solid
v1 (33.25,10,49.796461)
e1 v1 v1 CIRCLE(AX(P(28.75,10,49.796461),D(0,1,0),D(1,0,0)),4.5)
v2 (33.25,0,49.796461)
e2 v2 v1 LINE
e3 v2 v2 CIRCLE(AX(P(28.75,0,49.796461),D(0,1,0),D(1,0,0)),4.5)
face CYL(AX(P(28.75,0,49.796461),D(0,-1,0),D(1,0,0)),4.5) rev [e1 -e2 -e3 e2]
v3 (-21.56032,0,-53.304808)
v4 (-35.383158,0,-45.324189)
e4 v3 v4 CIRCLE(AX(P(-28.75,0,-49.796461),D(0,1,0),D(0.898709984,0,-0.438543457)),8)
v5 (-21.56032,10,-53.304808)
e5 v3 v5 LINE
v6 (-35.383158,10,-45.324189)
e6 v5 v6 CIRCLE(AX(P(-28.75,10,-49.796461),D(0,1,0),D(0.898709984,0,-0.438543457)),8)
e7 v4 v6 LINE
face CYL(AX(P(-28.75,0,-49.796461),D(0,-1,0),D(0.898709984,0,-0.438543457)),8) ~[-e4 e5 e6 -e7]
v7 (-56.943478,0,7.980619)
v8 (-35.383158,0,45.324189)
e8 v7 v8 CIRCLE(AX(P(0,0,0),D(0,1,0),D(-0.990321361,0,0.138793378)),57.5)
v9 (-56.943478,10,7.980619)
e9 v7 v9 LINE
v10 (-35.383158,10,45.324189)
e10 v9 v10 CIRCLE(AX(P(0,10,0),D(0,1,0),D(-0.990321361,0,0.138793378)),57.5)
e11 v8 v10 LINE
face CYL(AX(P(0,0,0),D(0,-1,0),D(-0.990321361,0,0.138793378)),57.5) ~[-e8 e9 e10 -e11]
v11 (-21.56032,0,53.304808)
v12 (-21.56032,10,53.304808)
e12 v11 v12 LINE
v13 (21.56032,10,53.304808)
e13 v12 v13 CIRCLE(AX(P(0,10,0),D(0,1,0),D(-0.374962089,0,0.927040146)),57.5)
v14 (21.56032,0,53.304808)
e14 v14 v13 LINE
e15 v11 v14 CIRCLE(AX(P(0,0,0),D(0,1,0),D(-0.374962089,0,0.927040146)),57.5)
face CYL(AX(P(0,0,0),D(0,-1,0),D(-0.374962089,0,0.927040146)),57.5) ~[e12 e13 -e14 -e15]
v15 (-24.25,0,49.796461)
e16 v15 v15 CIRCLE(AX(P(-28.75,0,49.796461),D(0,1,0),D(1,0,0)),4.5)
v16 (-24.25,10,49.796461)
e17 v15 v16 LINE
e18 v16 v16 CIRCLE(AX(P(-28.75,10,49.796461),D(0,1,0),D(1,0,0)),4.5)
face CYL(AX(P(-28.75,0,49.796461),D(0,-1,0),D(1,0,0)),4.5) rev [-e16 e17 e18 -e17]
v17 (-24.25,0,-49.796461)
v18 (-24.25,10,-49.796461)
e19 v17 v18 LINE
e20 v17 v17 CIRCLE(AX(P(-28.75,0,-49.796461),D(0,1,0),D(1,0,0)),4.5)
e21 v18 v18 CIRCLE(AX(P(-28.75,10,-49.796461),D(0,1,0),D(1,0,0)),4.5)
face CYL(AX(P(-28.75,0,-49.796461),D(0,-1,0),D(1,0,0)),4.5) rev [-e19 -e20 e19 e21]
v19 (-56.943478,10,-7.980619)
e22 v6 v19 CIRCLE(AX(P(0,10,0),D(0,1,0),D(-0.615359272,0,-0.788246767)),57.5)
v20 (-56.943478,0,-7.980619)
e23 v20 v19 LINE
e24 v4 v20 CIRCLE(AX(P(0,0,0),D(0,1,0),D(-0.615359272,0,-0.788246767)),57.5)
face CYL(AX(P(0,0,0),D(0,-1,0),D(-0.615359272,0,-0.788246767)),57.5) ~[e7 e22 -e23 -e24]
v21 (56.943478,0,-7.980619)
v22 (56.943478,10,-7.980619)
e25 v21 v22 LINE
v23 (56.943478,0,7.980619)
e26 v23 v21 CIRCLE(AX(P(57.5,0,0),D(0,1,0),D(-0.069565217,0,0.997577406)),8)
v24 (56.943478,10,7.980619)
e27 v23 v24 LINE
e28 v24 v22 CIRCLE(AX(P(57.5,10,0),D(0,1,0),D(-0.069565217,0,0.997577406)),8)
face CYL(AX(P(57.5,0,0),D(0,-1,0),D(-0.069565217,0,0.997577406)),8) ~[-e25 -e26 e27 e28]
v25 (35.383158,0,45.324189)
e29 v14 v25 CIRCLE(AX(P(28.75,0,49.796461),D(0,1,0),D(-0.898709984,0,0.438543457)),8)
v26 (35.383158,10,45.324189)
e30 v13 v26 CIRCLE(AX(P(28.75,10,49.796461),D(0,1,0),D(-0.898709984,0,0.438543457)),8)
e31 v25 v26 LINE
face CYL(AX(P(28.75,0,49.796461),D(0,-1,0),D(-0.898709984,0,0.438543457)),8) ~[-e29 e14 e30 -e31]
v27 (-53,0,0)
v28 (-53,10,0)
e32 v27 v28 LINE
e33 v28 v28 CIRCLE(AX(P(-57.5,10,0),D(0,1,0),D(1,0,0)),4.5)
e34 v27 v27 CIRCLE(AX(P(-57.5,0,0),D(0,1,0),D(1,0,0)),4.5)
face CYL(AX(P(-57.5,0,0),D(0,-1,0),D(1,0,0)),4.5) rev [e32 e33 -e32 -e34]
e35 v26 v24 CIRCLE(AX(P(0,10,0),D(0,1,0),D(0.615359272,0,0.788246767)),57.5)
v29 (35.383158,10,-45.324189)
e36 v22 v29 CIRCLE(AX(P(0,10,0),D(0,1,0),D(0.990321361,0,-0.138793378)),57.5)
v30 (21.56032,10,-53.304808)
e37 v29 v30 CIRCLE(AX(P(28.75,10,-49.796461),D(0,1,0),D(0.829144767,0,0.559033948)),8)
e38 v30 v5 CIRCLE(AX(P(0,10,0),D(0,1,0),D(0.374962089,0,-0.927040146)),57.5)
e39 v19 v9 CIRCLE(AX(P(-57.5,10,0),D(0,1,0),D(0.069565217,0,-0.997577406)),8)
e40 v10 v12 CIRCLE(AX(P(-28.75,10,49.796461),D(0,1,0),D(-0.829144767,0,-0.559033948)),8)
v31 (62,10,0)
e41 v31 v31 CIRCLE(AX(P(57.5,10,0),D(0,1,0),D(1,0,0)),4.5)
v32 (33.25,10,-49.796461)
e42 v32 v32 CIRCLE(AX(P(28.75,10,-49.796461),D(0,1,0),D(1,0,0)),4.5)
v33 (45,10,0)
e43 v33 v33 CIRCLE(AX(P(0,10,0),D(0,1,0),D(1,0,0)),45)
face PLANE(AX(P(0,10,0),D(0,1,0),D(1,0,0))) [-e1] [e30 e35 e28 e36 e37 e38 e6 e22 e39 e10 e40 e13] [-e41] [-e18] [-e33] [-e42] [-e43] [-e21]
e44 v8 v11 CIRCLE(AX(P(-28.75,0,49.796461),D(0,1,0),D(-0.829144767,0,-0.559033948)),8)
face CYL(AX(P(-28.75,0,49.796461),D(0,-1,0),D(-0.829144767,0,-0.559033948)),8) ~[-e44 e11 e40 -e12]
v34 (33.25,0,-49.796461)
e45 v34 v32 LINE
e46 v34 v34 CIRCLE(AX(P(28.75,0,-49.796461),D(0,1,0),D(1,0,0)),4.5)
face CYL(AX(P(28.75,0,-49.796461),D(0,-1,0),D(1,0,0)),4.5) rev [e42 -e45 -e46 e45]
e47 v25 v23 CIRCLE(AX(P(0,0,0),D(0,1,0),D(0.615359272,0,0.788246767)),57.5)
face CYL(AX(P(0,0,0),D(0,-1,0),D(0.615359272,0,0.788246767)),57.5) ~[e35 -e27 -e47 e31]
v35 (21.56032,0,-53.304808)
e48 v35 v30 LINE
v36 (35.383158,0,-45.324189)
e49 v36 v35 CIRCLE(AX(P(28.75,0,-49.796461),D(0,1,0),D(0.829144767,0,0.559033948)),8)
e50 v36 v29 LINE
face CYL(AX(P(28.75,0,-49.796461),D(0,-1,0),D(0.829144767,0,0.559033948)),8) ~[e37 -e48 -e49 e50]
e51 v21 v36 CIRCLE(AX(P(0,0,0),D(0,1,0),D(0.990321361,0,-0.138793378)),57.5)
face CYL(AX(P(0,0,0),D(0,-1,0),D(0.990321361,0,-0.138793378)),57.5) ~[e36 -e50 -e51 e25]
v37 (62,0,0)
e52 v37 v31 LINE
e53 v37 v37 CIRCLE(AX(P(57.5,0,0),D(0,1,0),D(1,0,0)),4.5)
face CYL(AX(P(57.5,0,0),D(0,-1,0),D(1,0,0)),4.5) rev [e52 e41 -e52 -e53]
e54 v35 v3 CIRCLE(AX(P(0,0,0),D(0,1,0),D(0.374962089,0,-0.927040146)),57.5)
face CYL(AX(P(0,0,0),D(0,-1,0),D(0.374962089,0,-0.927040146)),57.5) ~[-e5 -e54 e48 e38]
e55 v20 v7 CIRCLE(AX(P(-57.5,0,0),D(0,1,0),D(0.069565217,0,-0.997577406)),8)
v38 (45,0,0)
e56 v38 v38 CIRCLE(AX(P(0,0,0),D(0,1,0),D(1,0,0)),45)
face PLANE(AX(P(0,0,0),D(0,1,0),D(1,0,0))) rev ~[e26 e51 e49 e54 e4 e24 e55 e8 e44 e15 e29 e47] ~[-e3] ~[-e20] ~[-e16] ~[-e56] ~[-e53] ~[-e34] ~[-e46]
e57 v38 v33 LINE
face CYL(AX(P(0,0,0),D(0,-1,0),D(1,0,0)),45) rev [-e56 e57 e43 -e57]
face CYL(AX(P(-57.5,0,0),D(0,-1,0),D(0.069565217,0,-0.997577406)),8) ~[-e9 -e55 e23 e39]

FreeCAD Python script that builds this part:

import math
import FreeCAD as App
import Part
import Sketcher
from FreeCAD import Vector

doc = App.newDocument("Part")
body = doc.addObject("PartDesign::Body", "Body")

# Sketch on XZ plane
sketch1 = body.newObject("Sketcher::SketchObject", "Sketch")
sketch1.AttachmentSupport = (doc.getObject("XZ_Plane"), [""])
sketch1.MapMode = "FlatFace"
sketch1.addGeometry([
    Part.ArcOfCircle(Part.Circle(Vector(0, 0, 0), Vector(0, 0, 1), 57.5), math.radians(-52), math.radians(-8)),  # 0
    Part.ArcOfCircle(Part.Circle(Vector(28.8, -49.8, 0), Vector(0, 0, 1), 8), math.radians(-154), math.radians(34)),  # 1
    Part.ArcOfCircle(Part.Circle(Vector(0, 0, 0), Vector(0, 0, 1), 57.5), math.radians(-112), math.radians(-68)),  # 2
    Part.ArcOfCircle(Part.Circle(Vector(-28.8, -49.8, 0), Vector(0, 0, 1), 8), math.radians(146), math.radians(334)),  # 3
    Part.ArcOfCircle(Part.Circle(Vector(0, 0, 0), Vector(0, 0, 1), 57.5), math.radians(-172), math.radians(-128)),  # 4
    Part.ArcOfCircle(Part.Circle(Vector(-57.5, 0, 0), Vector(0, 0, 1), 8), math.radians(86), math.radians(274)),  # 5
    Part.ArcOfCircle(Part.Circle(Vector(0, 0, 0), Vector(0, 0, 1), 57.5), math.radians(128), math.radians(172)),  # 6
    Part.ArcOfCircle(Part.Circle(Vector(-28.8, 49.8, 0), Vector(0, 0, 1), 8), math.radians(26), math.radians(214)),  # 7
    Part.ArcOfCircle(Part.Circle(Vector(0, 0, 0), Vector(0, 0, 1), 57.5), math.radians(68), math.radians(112)),  # 8
    Part.ArcOfCircle(Part.Circle(Vector(28.8, 49.8, 0), Vector(0, 0, 1), 8), math.radians(-34), math.radians(154)),  # 9
    Part.ArcOfCircle(Part.Circle(Vector(0, 0, 0), Vector(0, 0, 1), 57.5), math.radians(8), math.radians(52)),  # 10
    Part.ArcOfCircle(Part.Circle(Vector(57.5, 0, 0), Vector(0, 0, 1), 8), math.radians(-94), math.radians(94)),  # 11
    Part.Circle(Vector(-28.8, 49.8, 0), Vector(0, 0, 1), 4.5),  # 12
    Part.Circle(Vector(28.8, 49.8, 0), Vector(0, 0, 1), 4.5),  # 13
    Part.Circle(Vector(-57.5, 0, 0), Vector(0, 0, 1), 4.5),  # 14
    Part.Circle(Vector(-28.8, -49.8, 0), Vector(0, 0, 1), 4.5),  # 15
    Part.Circle(Vector(0, 0, 0), Vector(0, 0, 1), 45),  # 16
    Part.Circle(Vector(57.5, 0, 0), Vector(0, 0, 1), 4.5),  # 17
    Part.Circle(Vector(28.8, -49.8, 0), Vector(0, 0, 1), 4.5),  # 18
], False)
sketch1.addConstraint([
    Sketcher.Constraint("Coincident", 0, 1, 1, 2),
    Sketcher.Constraint("Coincident", 1, 1, 2, 2),
    Sketcher.Constraint("Coincident", 2, 1, 3, 2),
    Sketcher.Constraint("Coincident", 3, 1, 4, 2),
    Sketcher.Constraint("Coincident", 4, 1, 5, 2),
    Sketcher.Constraint("Coincident", 5, 1, 6, 2),
    Sketcher.Constraint("Coincident", 6, 1, 7, 2),
    Sketcher.Constraint("Coincident", 7, 1, 8, 2),
    Sketcher.Constraint("Coincident", 8, 1, 9, 2),
    Sketcher.Constraint("Coincident", 9, 1, 10, 2),
    Sketcher.Constraint("Coincident", 10, 1, 11, 2),
    Sketcher.Constraint("Coincident", 11, 1, 0, 2),
    Sketcher.Constraint("Coincident", 0, 3, -1, 1),
    Sketcher.Constraint("Coincident", 2, 3, -1, 1),
    Sketcher.Constraint("Coincident", 4, 3, -1, 1),
    Sketcher.Constraint("Coincident", 6, 3, -1, 1),
    Sketcher.Constraint("Coincident", 8, 3, -1, 1),
    Sketcher.Constraint("Coincident", 10, 3, -1, 1),
    Sketcher.Constraint("Coincident", 16, 3, -1, 1),
    Sketcher.Constraint("Coincident", 12, 3, 7, 3),
    Sketcher.Constraint("Coincident", 13, 3, 9, 3),
    Sketcher.Constraint("Coincident", 14, 3, 5, 3),
    Sketcher.Constraint("Coincident", 15, 3, 3, 3),
    Sketcher.Constraint("Coincident", 17, 3, 11, 3),
    Sketcher.Constraint("Coincident", 18, 3, 1, 3),
    Sketcher.Constraint("Equal", 0, 2),
    Sketcher.Constraint("Equal", 1, 3),
    Sketcher.Constraint("Equal", 2, 4),
    Sketcher.Constraint("Equal", 3, 5),
    Sketcher.Constraint("Equal", 4, 6),
    Sketcher.Constraint("Equal", 5, 7),
    Sketcher.Constraint("Equal", 6, 8),
    Sketcher.Constraint("Equal", 7, 9),
    Sketcher.Constraint("Equal", 8, 10),
    Sketcher.Constraint("Equal", 9, 11),
    Sketcher.Constraint("Equal", 12, 13),
    Sketcher.Constraint("Equal", 13, 14),
    Sketcher.Constraint("Equal", 14, 15),
    Sketcher.Constraint("Equal", 15, 17),
    Sketcher.Constraint("Equal", 17, 18),
    Sketcher.Constraint("Symmetric", 1, 3, 7, 3, -1, 1),
    Sketcher.Constraint("Symmetric", 3, 3, 9, 3, -1, 1),
    Sketcher.Constraint("Symmetric", 5, 3, 11, 3, -1, 1),
    Sketcher.Constraint("Symmetric", 1, 3, 3, 3, -2),
    Sketcher.Constraint("PointOnObject", 5, 3, -1),
    Sketcher.Constraint("Diameter", 12, 9.0),
    Sketcher.Constraint("Diameter", 16, 90.0),
    Sketcher.Constraint("Radius", 1, 8.0),
    Sketcher.Constraint("Radius", 0, 57.5),
    Sketcher.Constraint("DistanceX", 5, 3, -1, 1, 57.5),
    Sketcher.Constraint("DistanceX", 3, 3, 1, 3, 57.5),
    Sketcher.Constraint("DistanceY", 1, 3, -1, 1, 49.796461),
])
pad1 = body.newObject("PartDesign::Pad", "Pad")
pad1.Profile = sketch1
pad1.Length = 10
pad1.Reversed = True

doc.recompute()
